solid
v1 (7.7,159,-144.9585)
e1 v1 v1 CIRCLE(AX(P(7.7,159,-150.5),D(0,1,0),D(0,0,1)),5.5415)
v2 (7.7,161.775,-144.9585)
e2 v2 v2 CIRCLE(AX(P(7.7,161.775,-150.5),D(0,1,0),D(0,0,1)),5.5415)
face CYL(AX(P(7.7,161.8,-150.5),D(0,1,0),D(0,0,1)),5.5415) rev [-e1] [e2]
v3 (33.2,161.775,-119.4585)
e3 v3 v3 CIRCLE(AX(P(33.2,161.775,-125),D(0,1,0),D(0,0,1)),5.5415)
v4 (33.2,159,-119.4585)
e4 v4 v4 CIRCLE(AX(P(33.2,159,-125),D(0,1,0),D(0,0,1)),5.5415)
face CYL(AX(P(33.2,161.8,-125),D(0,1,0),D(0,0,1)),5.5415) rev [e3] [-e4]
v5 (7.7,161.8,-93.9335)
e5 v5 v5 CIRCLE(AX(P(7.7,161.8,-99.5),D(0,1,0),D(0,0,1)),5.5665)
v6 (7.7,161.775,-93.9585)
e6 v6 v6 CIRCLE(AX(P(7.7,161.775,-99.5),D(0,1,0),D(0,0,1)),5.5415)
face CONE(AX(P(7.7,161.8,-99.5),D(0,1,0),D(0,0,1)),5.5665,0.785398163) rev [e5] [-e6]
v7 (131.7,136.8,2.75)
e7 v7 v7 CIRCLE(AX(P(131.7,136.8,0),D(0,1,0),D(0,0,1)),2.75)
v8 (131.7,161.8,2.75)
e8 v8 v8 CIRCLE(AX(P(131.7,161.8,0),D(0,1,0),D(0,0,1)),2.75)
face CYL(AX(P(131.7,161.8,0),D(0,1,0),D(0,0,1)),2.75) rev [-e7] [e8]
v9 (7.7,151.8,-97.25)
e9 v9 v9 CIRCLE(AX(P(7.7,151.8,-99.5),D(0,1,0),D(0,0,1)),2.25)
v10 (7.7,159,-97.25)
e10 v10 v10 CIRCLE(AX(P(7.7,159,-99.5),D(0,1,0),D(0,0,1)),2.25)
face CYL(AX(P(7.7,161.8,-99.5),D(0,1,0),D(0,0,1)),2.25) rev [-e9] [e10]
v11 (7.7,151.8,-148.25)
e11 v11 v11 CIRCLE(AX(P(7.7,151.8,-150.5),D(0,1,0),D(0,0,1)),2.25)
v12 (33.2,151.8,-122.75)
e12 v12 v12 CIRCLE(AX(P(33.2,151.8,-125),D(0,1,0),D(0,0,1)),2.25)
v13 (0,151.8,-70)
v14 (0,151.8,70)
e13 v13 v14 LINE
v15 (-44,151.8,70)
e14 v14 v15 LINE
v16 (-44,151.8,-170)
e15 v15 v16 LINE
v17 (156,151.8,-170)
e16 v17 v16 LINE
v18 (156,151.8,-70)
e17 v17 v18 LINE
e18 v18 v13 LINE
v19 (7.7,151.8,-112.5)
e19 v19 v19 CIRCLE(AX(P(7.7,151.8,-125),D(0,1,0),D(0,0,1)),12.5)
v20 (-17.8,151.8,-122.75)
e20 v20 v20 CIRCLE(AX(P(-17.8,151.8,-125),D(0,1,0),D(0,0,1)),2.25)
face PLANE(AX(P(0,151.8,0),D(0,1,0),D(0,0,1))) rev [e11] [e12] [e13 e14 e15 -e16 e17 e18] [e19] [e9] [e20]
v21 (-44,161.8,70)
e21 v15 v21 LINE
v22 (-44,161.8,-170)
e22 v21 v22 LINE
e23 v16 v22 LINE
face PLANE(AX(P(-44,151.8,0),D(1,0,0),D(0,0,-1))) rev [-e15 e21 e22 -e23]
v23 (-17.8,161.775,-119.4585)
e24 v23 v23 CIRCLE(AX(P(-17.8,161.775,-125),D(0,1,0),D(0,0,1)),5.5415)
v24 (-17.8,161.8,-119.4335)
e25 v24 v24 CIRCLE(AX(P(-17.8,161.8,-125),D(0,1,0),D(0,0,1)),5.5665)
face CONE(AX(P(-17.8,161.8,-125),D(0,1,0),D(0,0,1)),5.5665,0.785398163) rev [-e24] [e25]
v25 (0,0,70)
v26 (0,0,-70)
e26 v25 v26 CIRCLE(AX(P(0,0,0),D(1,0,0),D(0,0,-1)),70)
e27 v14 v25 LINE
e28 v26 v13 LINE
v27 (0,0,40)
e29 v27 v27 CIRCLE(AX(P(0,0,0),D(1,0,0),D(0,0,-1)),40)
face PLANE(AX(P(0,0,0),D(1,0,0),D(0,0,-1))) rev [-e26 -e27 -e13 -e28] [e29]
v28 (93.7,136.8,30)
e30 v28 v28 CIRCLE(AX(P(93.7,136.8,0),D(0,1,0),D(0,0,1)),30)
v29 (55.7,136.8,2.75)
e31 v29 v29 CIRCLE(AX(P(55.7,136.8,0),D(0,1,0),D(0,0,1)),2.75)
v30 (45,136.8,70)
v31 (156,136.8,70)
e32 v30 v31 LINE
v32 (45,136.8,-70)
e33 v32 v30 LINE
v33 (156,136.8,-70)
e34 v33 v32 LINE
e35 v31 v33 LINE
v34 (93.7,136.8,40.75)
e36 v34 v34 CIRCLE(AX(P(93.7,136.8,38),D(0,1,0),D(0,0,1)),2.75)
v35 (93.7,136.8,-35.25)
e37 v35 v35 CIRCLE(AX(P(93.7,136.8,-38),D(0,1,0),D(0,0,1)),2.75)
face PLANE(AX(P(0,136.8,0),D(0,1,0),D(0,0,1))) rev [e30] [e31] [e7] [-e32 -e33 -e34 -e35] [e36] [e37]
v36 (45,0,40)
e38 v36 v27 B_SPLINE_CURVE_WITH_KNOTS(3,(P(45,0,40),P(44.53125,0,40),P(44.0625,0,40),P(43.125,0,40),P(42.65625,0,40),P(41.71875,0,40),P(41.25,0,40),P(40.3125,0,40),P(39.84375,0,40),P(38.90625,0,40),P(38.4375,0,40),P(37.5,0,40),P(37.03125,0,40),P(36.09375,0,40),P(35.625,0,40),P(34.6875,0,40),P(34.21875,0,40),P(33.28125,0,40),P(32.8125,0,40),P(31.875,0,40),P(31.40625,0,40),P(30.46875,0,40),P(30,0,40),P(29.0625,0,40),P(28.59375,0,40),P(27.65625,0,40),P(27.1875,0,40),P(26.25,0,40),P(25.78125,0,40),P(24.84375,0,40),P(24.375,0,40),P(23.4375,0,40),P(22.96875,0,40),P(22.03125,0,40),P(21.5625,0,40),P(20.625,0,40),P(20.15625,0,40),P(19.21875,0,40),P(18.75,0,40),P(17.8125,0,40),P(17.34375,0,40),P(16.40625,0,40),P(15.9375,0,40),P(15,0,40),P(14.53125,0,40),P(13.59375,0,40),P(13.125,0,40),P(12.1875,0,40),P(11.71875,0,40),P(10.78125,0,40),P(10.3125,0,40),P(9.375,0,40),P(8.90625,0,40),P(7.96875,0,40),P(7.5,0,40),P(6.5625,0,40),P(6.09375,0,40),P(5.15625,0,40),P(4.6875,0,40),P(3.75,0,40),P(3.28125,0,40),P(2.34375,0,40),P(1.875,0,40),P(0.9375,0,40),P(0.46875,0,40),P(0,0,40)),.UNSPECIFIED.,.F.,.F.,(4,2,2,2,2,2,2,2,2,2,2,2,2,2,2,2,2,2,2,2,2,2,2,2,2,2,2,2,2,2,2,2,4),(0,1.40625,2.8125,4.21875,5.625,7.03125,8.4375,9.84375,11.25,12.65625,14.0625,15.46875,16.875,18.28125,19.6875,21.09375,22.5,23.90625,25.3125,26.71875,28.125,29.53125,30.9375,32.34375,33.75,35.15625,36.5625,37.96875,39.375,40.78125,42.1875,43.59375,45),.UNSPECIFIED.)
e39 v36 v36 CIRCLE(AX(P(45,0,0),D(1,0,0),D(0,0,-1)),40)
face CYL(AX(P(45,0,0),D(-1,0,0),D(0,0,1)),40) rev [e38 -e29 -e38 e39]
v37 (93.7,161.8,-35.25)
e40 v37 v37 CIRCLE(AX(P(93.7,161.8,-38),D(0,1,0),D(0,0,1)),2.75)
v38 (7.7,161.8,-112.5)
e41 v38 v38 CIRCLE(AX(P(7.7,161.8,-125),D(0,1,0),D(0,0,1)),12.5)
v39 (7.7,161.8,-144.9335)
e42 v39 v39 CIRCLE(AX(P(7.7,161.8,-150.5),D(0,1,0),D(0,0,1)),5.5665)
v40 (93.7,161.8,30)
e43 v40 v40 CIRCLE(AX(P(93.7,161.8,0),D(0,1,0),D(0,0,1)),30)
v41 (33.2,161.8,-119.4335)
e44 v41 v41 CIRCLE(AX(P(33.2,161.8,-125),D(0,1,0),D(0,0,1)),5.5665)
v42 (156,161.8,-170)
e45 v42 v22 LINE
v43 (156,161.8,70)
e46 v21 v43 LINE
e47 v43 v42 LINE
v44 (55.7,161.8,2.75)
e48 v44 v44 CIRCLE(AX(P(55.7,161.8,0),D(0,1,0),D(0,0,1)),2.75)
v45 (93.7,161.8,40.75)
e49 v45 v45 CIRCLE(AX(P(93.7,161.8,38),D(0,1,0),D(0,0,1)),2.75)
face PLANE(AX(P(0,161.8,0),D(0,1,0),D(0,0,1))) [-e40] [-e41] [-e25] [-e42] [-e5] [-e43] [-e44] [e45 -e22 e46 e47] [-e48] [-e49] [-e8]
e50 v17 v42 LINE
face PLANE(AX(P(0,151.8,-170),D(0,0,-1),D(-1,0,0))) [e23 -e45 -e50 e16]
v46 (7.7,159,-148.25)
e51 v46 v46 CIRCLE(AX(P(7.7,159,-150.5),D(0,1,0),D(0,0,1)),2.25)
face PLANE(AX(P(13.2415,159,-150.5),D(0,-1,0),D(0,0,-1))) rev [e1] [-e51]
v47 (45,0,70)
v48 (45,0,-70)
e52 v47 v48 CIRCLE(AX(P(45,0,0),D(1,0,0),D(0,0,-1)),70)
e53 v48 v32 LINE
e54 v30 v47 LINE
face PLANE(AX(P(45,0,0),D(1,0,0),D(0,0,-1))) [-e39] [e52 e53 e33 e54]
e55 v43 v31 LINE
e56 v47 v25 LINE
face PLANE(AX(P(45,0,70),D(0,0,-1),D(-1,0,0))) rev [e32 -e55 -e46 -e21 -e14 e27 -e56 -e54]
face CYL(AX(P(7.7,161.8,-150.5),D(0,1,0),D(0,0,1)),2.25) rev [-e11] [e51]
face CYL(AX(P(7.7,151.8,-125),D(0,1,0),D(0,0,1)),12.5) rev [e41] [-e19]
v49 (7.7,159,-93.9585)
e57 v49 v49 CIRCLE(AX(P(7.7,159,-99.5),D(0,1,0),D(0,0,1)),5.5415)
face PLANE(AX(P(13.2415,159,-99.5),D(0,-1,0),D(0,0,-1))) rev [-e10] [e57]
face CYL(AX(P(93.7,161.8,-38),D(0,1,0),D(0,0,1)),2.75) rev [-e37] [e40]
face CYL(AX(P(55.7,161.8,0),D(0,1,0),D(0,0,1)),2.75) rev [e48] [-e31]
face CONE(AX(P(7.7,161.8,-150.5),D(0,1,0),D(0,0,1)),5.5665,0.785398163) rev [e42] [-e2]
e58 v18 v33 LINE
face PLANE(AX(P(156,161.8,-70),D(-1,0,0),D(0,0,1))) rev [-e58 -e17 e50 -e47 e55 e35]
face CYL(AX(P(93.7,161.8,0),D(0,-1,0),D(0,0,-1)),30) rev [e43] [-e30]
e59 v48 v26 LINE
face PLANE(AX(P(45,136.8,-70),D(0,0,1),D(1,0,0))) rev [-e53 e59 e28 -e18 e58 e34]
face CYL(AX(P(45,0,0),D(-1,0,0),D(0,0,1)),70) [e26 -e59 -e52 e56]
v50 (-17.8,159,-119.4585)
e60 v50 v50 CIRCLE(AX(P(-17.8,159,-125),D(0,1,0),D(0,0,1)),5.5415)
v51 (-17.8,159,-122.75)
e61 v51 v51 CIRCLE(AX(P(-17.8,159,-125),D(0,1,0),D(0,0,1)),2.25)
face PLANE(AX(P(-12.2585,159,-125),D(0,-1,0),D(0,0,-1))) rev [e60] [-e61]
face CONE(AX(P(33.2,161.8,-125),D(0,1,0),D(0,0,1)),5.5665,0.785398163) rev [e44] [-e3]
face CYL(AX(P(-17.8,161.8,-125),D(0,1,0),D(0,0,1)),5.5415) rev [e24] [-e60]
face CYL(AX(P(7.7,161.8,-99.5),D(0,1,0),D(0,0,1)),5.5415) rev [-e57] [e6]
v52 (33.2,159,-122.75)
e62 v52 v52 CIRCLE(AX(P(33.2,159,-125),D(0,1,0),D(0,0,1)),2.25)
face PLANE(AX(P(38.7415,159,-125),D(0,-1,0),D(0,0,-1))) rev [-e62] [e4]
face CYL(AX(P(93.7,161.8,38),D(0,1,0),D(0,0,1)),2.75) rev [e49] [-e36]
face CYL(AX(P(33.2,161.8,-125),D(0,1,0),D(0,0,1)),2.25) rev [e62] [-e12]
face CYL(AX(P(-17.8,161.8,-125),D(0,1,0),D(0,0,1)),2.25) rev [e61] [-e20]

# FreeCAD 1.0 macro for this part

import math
import FreeCAD as App
import Part
import Sketcher
Q = App.Units.Quantity


def add_polygon(sketch, points):
    """Adds a closed chain of lines whose ends are joined by coincident constraints."""
    first, n = sketch.GeometryCount, len(points)
    for a, b in zip(points, points[1:] + points[:1]):
        sketch.addGeometry(Part.LineSegment(App.Vector(*a, 0), App.Vector(*b, 0)), False)
    for i in range(n):
        sketch.addConstraint(Sketcher.Constraint("Coincident", first + i, 2, first + (i + 1) % n, 1))

doc = App.newDocument("Part")
body = doc.addObject("PartDesign::Body", "Body")

sketch1 = body.newObject("Sketcher::SketchObject", "Sketch")
sketch1.AttachmentSupport = (doc.getObject("YZ_Plane"), [""])
sketch1.MapMode = "FlatFace"
sketch1.addGeometry(Part.LineSegment(App.Vector(137, 70, 0), App.Vector(0, 70, 0)), False)
sketch1.addGeometry(Part.ArcOfCircle(Part.Circle(App.Vector(0, 0, 0), App.Vector(0, 0, 1), 70), math.radians(90), math.radians(270)), False)
sketch1.addGeometry(Part.LineSegment(App.Vector(0, -70, 0), App.Vector(137, -70, 0)), False)
sketch1.addGeometry(Part.LineSegment(App.Vector(137, -70, 0), App.Vector(137, 70, 0)), False)
sketch1.addGeometry(Part.Circle(App.Vector(0, 0, 0), App.Vector(0, 0, 1), 40), False)
sketch1.addConstraint(Sketcher.Constraint("Tangent", 0, 2, 1, 1))
sketch1.addConstraint(Sketcher.Constraint("Tangent", 1, 2, 2, 1))
sketch1.addConstraint(Sketcher.Constraint("Coincident", 2, 2, 3, 1))
sketch1.addConstraint(Sketcher.Constraint("Coincident", 3, 2, 0, 1))
sketch1.addConstraint(Sketcher.Constraint("Horizontal", 0))
sketch1.addConstraint(Sketcher.Constraint("Horizontal", 2))
sketch1.addConstraint(Sketcher.Constraint("Vertical", 3))
sketch1.addConstraint(Sketcher.Constraint("Coincident", 1, 3, -1, 1))
sketch1.addConstraint(Sketcher.Constraint("Coincident", 4, 3, -1, 1))
sketch1.addConstraint(Sketcher.Constraint("Diameter", 4, 80.0))
sketch1.addConstraint(Sketcher.Constraint("Radius", 1, 70.0))
sketch1.addConstraint(Sketcher.Constraint("DistanceX", 0, 2, 0, 1, 136.8))
pad1 = body.newObject("PartDesign::Pad", "Pad")
pad1.Profile = sketch1
pad1.Length = 45

sketch2 = body.newObject("Sketcher::SketchObject", "Sketch001")
sketch2.AttachmentSupport = (doc.getObject("XZ_Plane"), [""])
sketch2.MapMode = "FlatFace"
sketch2.AttachmentOffset = App.Placement(App.Vector(0, 0, -136.8), App.Rotation())
add_polygon(sketch2, [(0, -70), (0, 70), (156, 70), (156, -70)])
sketch2.addGeometry(Part.Circle(App.Vector(94, 0, 0), App.Vector(0, 0, 1), 30), False)
sketch2.addConstraint(Sketcher.Constraint("Vertical", 0))
sketch2.addConstraint(Sketcher.Constraint("Horizontal", 1))
sketch2.addConstraint(Sketcher.Constraint("Vertical", 2))
sketch2.addConstraint(Sketcher.Constraint("Horizontal", 3))
sketch2.addConstraint(Sketcher.Constraint("Symmetric", 0, 2, 3, 2, -1, 1))
sketch2.addConstraint(Sketcher.Constraint("PointOnObject", 4, 3, -1))
sketch2.addConstraint(Sketcher.Constraint("Diameter", 4, 60.0))
sketch2.addConstraint(Sketcher.Constraint("DistanceX", 1, 1, 1, 2, 156.0))
sketch2.addConstraint(Sketcher.Constraint("DistanceY", 0, 1, 0, 2, 140.0))
sketch2.addConstraint(Sketcher.Constraint("DistanceX", -1, 1, 4, 3, 93.7))
pad2 = body.newObject("PartDesign::Pad", "Pad001")
pad2.Profile = sketch2
pad2.Length = 25
pad2.Reversed = True

sketch3 = body.newObject("Sketcher::SketchObject", "Sketch002")
sketch3.AttachmentSupport = (doc.getObject("XZ_Plane"), [""])
sketch3.MapMode = "FlatFace"
sketch3.AttachmentOffset = App.Placement(App.Vector(0, 0, -161.8), App.Rotation())
add_polygon(sketch3, [(156, -70), (156, -170), (-44, -170), (-44, 70), (0, 70), (0, -70)])
sketch3.addConstraint(Sketcher.Constraint("Vertical", 0))
sketch3.addConstraint(Sketcher.Constraint("Horizontal", 1))
sketch3.addConstraint(Sketcher.Constraint("Vertical", 2))
sketch3.addConstraint(Sketcher.Constraint("Horizontal", 3))
sketch3.addConstraint(Sketcher.Constraint("Vertical", 4))
sketch3.addConstraint(Sketcher.Constraint("Horizontal", 5))
sketch3.addConstraint(Sketcher.Constraint("Symmetric", 3, 2, 4, 2, -1, 1))
sketch3.addConstraint(Sketcher.Constraint("DistanceX", 1, 2, 1, 1, 200.0))
sketch3.addConstraint(Sketcher.Constraint("DistanceX", 3, 1, 3, 2, 44.0))
sketch3.addConstraint(Sketcher.Constraint("DistanceY", 0, 2, 0, 1, 100.0))
sketch3.addConstraint(Sketcher.Constraint("DistanceY", 2, 1, 2, 2, 240.0))
pad3 = body.newObject("PartDesign::Pad", "Pad002")
pad3.Profile = sketch3
pad3.Length = 10

sketch4 = body.newObject("Sketcher::SketchObject", "Sketch003")
sketch4.AttachmentSupport = (doc.getObject("XZ_Plane"), [""])
sketch4.MapMode = "FlatFace"
sketch4.AttachmentOffset = App.Placement(App.Vector(0, 0, -161.8), App.Rotation())
sketch4.addGeometry(Part.Circle(App.Vector(8, -125, 0), App.Vector(0, 0, 1), 12), False)
sketch4.addConstraint(Sketcher.Constraint("Diameter", 0, 25.0))
sketch4.addConstraint(Sketcher.Constraint("DistanceY", 0, 3, -1, 1, 125.0))
sketch4.addConstraint(Sketcher.Constraint("DistanceX", -1, 1, 0, 3, 7.7))
pocket1 = body.newObject("PartDesign::Pocket", "Pocket")
pocket1.Profile = sketch4
pocket1.Length = 10
pocket1.Reversed = True

sketch5 = body.newObject("Sketcher::SketchObject", "Sketch004")
sketch5.AttachmentSupport = (doc.getObject("YZ_Plane"), [""])
sketch5.MapMode = "FlatFace"
sketch5.AttachmentOffset = App.Placement(App.Vector(0, 0, 7.7), App.Rotation())
add_polygon(sketch5, [(-70, -150.5), (161.8, -150.5), (161.8, -144.934), (161.775, -144.958), (159, -144.958), (159, -148.25), (-70, -148.25)])
sketch5.addGeometry(Part.LineSegment(App.Vector(161.8, -150.5, 0), App.Vector(-70, -150.5, 0)), True)
sketch5.addConstraint(Sketcher.Constraint("Horizontal", 0))
sketch5.addConstraint(Sketcher.Constraint("Vertical", 1))
sketch5.addConstraint(Sketcher.Constraint("Horizontal", 3))
sketch5.addConstraint(Sketcher.Constraint("Vertical", 4))
sketch5.addConstraint(Sketcher.Constraint("Horizontal", 5))
sketch5.addConstraint(Sketcher.Constraint("Vertical", 6))
sketch5.addConstraint(Sketcher.Constraint("Horizontal", 7))
sketch5.addConstraint(Sketcher.Constraint("Coincident", 7, 1, 0, 2))
sketch5.addConstraint(Sketcher.Constraint("Vertical", 5, 2, 7, 2))
sketch5.addConstraint(Sketcher.Constraint("DistanceX", 5, 2, 5, 1, 229.0))
sketch5.addConstraint(Sketcher.Constraint("Angle", 2, Q("-135 deg")))
sketch5.addConstraint(Sketcher.Constraint("DistanceX", 0, 1, 0, 2, 231.8))
sketch5.addConstraint(Sketcher.Constraint("DistanceX", -1, 1, 3, 2, 159.0))
sketch5.addConstraint(Sketcher.Constraint("DistanceY", 6, 2, 6, 1, 2.25))
sketch5.addConstraint(Sketcher.Constraint("DistanceY", 0, 2, -1, 1, 150.5))
sketch5.addConstraint(Sketcher.Constraint("DistanceX", 3, 2, 3, 1, 2.775))
sketch5.addConstraint(Sketcher.Constraint("DistanceY", 1, 1, 1, 2, 5.5665))
groove = body.newObject("PartDesign::Groove", "Groove")
groove.Profile = sketch5
groove.ReferenceAxis = (sketch5, ["Axis0"])
groove.Angle = 360
doc.recompute()

datumline = body.newObject("PartDesign::Line", "DatumLine")
datumline.Placement = App.Placement(App.Vector(0, 0, 0), App.Rotation(App.Vector(0, 0, 1), App.Vector(-0.707106781, 0, 0.707106781)))
linearpattern = body.newObject("PartDesign::LinearPattern", "LinearPattern")
linearpattern.Originals = [groove]
linearpattern.Direction = (datumline, [""])
linearpattern.Mode = "offset"
linearpattern.Offset = 36.062446
linearpattern.Occurrences = 2
body.Tip = linearpattern
doc.recompute()

linearpattern2 = body.newObject("PartDesign::LinearPattern", "LinearPattern001")
linearpattern2.Originals = [groove]
linearpattern2.Direction = (doc.getObject("Z_Axis"), [""])
linearpattern2.Mode = "offset"
linearpattern2.Offset = 51
linearpattern2.Occurrences = 2
body.Tip = linearpattern2
doc.recompute()

datumline2 = body.newObject("PartDesign::Line", "DatumLine001")
datumline2.Placement = App.Placement(App.Vector(0, 0, 0), App.Rotation(App.Vector(0, 0, 1), App.Vector(0.707106781, 0, 0.707106781)))
linearpattern3 = body.newObject("PartDesign::LinearPattern", "LinearPattern002")
linearpattern3.Originals = [groove]
linearpattern3.Direction = (datumline2, [""])
linearpattern3.Mode = "offset"
linearpattern3.Offset = 36.062446
linearpattern3.Occurrences = 2
body.Tip = linearpattern3

sketch6 = body.newObject("Sketcher::SketchObject", "Sketch005")
sketch6.AttachmentSupport = (doc.getObject("XZ_Plane"), [""])
sketch6.MapMode = "FlatFace"
sketch6.AttachmentOffset = App.Placement(App.Vector(0, 0, -161.8), App.Rotation())
sketch6.addGeometry(Part.Circle(App.Vector(93.7, -38, 0), App.Vector(0, 0, 1), 2.8), False)
sketch6.addGeometry(Part.Circle(App.Vector(93.7, 38, 0), App.Vector(0, 0, 1), 2.8), False)
sketch6.addGeometry(Part.Circle(App.Vector(55.7, 0, 0), App.Vector(0, 0, 1), 2.8), False)
sketch6.addGeometry(Part.Circle(App.Vector(131.7, 0, 0), App.Vector(0, 0, 1), 2.8), False)
sketch6.addConstraint(Sketcher.Constraint("Equal", 0, 1))
sketch6.addConstraint(Sketcher.Constraint("Equal", 1, 2))
sketch6.addConstraint(Sketcher.Constraint("Equal", 2, 3))
sketch6.addConstraint(Sketcher.Constraint("Symmetric", 0, 3, 1, 3, -1))
sketch6.addConstraint(Sketcher.Constraint("PointOnObject", 2, 3, -1))
sketch6.addConstraint(Sketcher.Constraint("PointOnObject", 3, 3, -1))
sketch6.addConstraint(Sketcher.Constraint("Diameter", 0, 5.5))
sketch6.addConstraint(Sketcher.Constraint("DistanceY", 0, 3, -1, 1, 38.0))
sketch6.addConstraint(Sketcher.Constraint("DistanceX", 2, 3, 0, 3, 38.0))
sketch6.addConstraint(Sketcher.Constraint("DistanceX", 0, 3, 3, 3, 38.0))
sketch6.addConstraint(Sketcher.Constraint("DistanceX", -1, 1, 0, 3, 93.7))
doc.recompute()
hole = body.newObject("PartDesign::Hole", "Hole")
hole.Profile = sketch6
hole.ThreadType = "None"
hole.Diameter = 5.5
hole.DepthType = "ThroughAll"
hole.Reversed = True

doc.recompute()
